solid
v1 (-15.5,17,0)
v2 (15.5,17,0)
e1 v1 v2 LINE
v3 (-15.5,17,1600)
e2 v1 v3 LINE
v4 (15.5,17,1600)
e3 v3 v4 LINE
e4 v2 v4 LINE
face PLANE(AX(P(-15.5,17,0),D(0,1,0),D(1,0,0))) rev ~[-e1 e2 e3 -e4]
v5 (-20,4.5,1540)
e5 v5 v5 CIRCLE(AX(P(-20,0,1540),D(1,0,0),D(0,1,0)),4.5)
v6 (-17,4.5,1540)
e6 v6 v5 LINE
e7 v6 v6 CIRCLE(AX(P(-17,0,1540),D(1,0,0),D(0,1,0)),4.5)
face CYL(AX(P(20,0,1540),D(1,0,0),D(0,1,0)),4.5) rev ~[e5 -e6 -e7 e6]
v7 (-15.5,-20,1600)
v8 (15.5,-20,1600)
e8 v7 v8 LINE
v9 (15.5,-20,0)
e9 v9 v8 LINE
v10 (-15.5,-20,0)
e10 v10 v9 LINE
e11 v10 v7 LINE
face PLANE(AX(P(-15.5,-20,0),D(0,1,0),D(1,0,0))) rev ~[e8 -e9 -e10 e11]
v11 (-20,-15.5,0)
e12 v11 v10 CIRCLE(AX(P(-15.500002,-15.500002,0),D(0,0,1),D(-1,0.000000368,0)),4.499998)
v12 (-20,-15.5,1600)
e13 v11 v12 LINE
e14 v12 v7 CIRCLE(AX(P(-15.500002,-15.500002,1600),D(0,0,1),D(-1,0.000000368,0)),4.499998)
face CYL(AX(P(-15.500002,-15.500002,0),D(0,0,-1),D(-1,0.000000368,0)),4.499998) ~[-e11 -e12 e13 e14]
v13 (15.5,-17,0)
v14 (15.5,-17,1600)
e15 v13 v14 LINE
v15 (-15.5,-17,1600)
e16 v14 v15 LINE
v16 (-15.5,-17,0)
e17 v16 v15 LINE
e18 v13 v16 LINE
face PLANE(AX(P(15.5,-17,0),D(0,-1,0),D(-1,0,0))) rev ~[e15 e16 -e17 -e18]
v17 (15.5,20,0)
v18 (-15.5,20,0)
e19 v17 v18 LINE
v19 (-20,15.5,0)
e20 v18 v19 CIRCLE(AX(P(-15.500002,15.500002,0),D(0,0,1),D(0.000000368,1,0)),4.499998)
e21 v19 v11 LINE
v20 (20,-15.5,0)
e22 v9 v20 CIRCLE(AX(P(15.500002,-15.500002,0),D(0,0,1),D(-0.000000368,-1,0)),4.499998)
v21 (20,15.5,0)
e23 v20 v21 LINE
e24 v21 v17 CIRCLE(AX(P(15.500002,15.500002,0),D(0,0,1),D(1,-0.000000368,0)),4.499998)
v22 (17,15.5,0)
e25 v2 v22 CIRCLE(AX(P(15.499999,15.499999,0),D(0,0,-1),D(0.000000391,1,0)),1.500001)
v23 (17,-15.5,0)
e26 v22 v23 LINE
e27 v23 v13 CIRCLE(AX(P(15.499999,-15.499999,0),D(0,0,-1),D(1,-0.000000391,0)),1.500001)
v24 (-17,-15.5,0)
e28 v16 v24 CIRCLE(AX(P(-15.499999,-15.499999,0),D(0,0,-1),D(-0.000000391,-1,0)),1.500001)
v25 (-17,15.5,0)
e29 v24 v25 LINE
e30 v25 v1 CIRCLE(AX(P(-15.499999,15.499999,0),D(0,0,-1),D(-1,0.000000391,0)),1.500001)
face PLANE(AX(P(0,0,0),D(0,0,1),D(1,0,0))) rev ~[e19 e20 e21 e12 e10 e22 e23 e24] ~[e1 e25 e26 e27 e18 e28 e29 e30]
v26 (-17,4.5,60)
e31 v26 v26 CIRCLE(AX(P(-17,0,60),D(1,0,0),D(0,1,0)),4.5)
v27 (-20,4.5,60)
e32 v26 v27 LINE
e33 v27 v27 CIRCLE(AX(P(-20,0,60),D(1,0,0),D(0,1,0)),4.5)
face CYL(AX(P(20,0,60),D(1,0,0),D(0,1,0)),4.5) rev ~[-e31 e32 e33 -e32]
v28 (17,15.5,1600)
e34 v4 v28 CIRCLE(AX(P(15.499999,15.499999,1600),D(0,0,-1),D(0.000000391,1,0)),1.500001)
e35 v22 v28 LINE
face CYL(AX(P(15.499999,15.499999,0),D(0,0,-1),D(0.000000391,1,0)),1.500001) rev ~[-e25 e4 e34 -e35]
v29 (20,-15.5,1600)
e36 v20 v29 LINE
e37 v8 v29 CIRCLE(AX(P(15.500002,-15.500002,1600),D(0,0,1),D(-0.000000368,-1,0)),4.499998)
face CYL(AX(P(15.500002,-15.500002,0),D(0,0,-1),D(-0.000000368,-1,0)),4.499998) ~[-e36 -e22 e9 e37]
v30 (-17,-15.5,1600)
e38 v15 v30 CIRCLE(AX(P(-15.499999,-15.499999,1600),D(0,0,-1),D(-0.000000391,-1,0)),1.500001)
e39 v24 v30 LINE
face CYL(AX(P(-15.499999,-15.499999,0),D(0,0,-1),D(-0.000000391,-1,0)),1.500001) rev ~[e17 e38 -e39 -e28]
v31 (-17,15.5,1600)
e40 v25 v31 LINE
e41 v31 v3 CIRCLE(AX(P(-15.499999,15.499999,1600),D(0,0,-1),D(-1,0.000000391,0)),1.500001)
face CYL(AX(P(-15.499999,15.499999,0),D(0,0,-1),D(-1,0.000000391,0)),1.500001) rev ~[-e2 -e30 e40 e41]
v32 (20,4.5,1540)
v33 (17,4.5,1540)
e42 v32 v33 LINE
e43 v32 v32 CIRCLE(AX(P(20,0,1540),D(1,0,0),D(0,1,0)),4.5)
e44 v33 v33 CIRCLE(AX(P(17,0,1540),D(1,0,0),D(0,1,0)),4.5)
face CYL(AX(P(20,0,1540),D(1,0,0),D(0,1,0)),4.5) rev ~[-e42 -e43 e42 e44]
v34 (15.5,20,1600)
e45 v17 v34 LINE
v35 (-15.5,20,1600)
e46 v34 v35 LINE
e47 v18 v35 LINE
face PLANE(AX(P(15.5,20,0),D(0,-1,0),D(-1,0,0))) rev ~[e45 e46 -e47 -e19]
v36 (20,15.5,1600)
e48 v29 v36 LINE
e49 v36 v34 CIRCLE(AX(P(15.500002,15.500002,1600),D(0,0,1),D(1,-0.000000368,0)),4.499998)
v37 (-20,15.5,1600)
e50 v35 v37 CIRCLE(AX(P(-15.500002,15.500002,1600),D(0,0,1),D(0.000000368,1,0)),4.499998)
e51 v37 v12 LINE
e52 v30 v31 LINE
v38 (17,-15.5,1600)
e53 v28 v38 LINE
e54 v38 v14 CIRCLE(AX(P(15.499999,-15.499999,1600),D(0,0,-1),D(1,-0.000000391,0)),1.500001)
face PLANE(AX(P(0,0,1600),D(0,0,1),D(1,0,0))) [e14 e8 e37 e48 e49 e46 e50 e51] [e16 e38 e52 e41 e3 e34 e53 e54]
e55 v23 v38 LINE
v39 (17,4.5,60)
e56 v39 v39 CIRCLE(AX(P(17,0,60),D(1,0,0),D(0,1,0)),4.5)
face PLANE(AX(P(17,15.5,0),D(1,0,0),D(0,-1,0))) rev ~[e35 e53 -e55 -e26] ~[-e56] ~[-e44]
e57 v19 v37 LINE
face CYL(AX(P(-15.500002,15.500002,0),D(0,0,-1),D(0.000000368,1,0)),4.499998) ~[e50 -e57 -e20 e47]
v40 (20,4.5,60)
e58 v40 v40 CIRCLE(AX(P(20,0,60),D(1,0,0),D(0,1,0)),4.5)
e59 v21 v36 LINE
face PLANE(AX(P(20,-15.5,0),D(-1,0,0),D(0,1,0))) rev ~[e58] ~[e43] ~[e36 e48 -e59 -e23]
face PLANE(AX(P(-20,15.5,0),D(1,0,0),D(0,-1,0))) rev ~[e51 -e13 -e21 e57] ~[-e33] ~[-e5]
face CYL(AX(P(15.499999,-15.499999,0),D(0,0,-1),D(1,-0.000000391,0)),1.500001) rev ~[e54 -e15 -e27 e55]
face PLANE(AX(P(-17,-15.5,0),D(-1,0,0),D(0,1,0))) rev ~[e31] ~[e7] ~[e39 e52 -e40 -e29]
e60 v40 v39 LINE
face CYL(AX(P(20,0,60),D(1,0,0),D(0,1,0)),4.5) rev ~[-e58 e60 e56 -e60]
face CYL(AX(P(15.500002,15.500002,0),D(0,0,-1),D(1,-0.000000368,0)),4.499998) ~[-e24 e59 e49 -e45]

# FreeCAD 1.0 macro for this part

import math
import FreeCAD as App
import Part
import Sketcher

V = App.Vector

doc = App.newDocument("Part")
body = doc.addObject("PartDesign::Body", "Body")

# Sketch on XY plane
sketch1 = doc.addObject("Sketcher::SketchObject", "Sketch")
body.addObject(sketch1)
sketch1.AttachmentSupport = (doc.XY_Plane, [""])
sketch1.MapMode = "FlatFace"
sketch1.addGeometry([
    Part.LineSegment(V(-15.5, -20, 0), V(15.5, -20, 0)),  # 0
    Part.ArcOfCircle(Part.Circle(V(15.500002, -15.500002, 0), V(0, 0, 1), 4.499998), math.radians(-90.000021), math.radians(0.000021)),  # 1
    Part.LineSegment(V(20, -15.5, 0), V(20, 15.5, 0)),  # 2
    Part.ArcOfCircle(Part.Circle(V(15.500002, 15.500002, 0), V(0, 0, 1), 4.499998), math.radians(-0.000021), math.radians(90.000021)),  # 3
    Part.LineSegment(V(15.5, 20, 0), V(-15.5, 20, 0)),  # 4
    Part.ArcOfCircle(Part.Circle(V(-15.500002, 15.500002, 0), V(0, 0, 1), 4.499998), math.radians(89.999979), math.radians(180.000021)),  # 5
    Part.LineSegment(V(-20, 15.5, 0), V(-20, -15.5, 0)),  # 6
    Part.ArcOfCircle(Part.Circle(V(-15.500002, -15.500002, 0), V(0, 0, 1), 4.499998), math.radians(179.999979), math.radians(270.000021)),  # 7
    Part.LineSegment(V(-15.5, 17, 0), V(15.5, 17, 0)),  # 8
    Part.ArcOfCircle(Part.Circle(V(15.499999, 15.499999, 0), V(0, 0, 1), 1.500001), math.radians(0.000022), math.radians(89.999978)),  # 9
    Part.LineSegment(V(17, 15.5, 0), V(17, -15.5, 0)),  # 10
    Part.ArcOfCircle(Part.Circle(V(15.499999, -15.499999, 0), V(0, 0, 1), 1.500001), math.radians(-89.999978), math.radians(-0.000022)),  # 11
    Part.LineSegment(V(15.5, -17, 0), V(-15.5, -17, 0)),  # 12
    Part.ArcOfCircle(Part.Circle(V(-15.499999, -15.499999, 0), V(0, 0, 1), 1.500001), math.radians(-179.999978), math.radians(-90.000022)),  # 13
    Part.LineSegment(V(-17, -15.5, 0), V(-17, 15.5, 0)),  # 14
    Part.ArcOfCircle(Part.Circle(V(-15.499999, 15.499999, 0), V(0, 0, 1), 1.500001), math.radians(90.000022), math.radians(179.999978)),  # 15
], False)
sketch1.addConstraint([
    Sketcher.Constraint("Tangent", 0, 2, 1, 1),
    Sketcher.Constraint("Tangent", 1, 2, 2, 1),
    Sketcher.Constraint("Tangent", 2, 2, 3, 1),
    Sketcher.Constraint("Tangent", 3, 2, 4, 1),
    Sketcher.Constraint("Tangent", 4, 2, 5, 1),
    Sketcher.Constraint("Tangent", 5, 2, 6, 1),
    Sketcher.Constraint("Tangent", 6, 2, 7, 1),
    Sketcher.Constraint("Tangent", 7, 2, 0, 1),
    Sketcher.Constraint("Tangent", 8, 2, 9, 2),
    Sketcher.Constraint("Tangent", 9, 1, 10, 1),
    Sketcher.Constraint("Tangent", 10, 2, 11, 2),
    Sketcher.Constraint("Tangent", 11, 1, 12, 1),
    Sketcher.Constraint("Tangent", 12, 2, 13, 2),
    Sketcher.Constraint("Tangent", 13, 1, 14, 1),
    Sketcher.Constraint("Tangent", 14, 2, 15, 2),
    Sketcher.Constraint("Tangent", 15, 1, 8, 1),
    Sketcher.Constraint("Horizontal", 0),
    Sketcher.Constraint("Vertical", 2),
    Sketcher.Constraint("Horizontal", 4),
    Sketcher.Constraint("Vertical", 6),
    Sketcher.Constraint("Horizontal", 8),
    Sketcher.Constraint("Vertical", 10),
    Sketcher.Constraint("Horizontal", 12),
    Sketcher.Constraint("Vertical", 14),
    Sketcher.Constraint("Coincident", 9, 3, 3, 3),
    Sketcher.Constraint("Coincident", 11, 3, 1, 3),
    Sketcher.Constraint("Coincident", 13, 3, 7, 3),
    Sketcher.Constraint("Equal", 1, 3),
    Sketcher.Constraint("Equal", 3, 5),
    Sketcher.Constraint("Equal", 5, 7),
    Sketcher.Constraint("Equal", 13, 15),
    Sketcher.Constraint("Symmetric", 1, 3, 5, 3, -1, 1),
    Sketcher.Constraint("Equal", 12, 2),
    Sketcher.Constraint("Radius", 1, 4.499998),
    Sketcher.Constraint("Radius", 9, 1.500001),
    Sketcher.Constraint("DistanceX", 0, 1, 0, 2, 31.0),
])
pad1 = doc.addObject("PartDesign::Pad", "Pad")
body.addObject(pad1)
pad1.Profile = sketch1
pad1.Length = 1600

# Sketch on YZ plane
sketch2 = doc.addObject("Sketcher::SketchObject", "Sketch001")
body.addObject(sketch2)
sketch2.AttachmentSupport = (doc.YZ_Plane, [""])
sketch2.MapMode = "FlatFace"
sketch2.AttachmentOffset = App.Placement(V(0, 0, 20), App.Rotation())
sketch2.addGeometry([
    Part.Circle(V(0, 1540, 0), V(0, 0, 1), 4.5),
    Part.Circle(V(0, 60, 0), V(0, 0, 1), 4.5),
], False)
sketch2.addConstraint([
    Sketcher.Constraint("Equal", 0, 1),
    Sketcher.Constraint("PointOnObject", 0, 3, -2),
    Sketcher.Constraint("PointOnObject", 1, 3, -2),
    Sketcher.Constraint("Diameter", 0, 9.0),
    Sketcher.Constraint("DistanceY", -1, 1, 0, 3, 1540.0),
    Sketcher.Constraint("DistanceY", -1, 1, 1, 3, 60.0),
])
pocket1 = doc.addObject("PartDesign::Pocket", "Pocket")
body.addObject(pocket1)
pocket1.Profile = sketch2
pocket1.Type = "ThroughAll"

doc.recompute()
